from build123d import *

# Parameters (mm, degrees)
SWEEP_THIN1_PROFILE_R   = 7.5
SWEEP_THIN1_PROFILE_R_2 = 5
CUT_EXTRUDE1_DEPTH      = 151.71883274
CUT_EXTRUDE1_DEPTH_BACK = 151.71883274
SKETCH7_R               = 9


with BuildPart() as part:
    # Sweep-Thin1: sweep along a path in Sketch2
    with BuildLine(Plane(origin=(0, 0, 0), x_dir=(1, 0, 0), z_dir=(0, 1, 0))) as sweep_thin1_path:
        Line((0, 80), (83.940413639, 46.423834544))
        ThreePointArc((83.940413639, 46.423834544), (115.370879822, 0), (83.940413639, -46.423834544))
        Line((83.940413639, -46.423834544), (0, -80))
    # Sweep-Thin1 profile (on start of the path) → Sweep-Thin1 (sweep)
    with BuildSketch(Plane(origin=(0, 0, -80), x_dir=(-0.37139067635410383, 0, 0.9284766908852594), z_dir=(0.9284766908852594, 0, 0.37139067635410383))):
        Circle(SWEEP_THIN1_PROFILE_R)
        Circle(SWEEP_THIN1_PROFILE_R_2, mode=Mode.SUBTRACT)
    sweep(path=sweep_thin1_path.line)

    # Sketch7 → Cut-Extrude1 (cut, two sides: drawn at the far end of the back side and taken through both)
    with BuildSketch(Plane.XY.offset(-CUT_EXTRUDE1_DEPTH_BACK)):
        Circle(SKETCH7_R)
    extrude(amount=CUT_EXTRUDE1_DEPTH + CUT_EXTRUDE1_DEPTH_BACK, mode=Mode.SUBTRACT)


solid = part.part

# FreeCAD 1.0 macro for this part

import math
import FreeCAD as App
import Part
import Sketcher

doc = App.newDocument("Part")
params = doc.addObject("Spreadsheet::Sheet", "Params")
for row, (alias, value) in enumerate([
    ("sketch1_diameter", "15 mm"),
    ("sketch1_diameter2", "10 mm"),
    ("sketch2_radius", "50 mm"),
    ("sketch3_diameter", "18 mm"),
], start=1):
    params.set(f"A{row}", alias)
    params.set(f"B{row}", "=" + value)
    params.setAlias(f"B{row}", alias)

body = doc.addObject("PartDesign::Body", "Body")

# Sketch on an angled plane
sketch1 = doc.addObject("Sketcher::SketchObject", "Sketch")
body.addObject(sketch1)
sketch1.Placement = App.Placement(App.Vector(0, 0, -80), App.Rotation(App.Vector(-0.371390676, 0, 0.928476691), App.Vector(0, -1, 0), App.Vector(0.928476691, 0, 0.371390676), "ZXY"))
sketch1.addGeometry(Part.Circle(App.Vector(0, 0, 0), App.Vector(0, 0, 1), 8), False)
sketch1.addGeometry(Part.Circle(App.Vector(0, 0, 0), App.Vector(0, 0, 1), 5), False)
sketch1.addConstraint(Sketcher.Constraint("Coincident", 0, 3, -1, 1))
sketch1.addConstraint(Sketcher.Constraint("Coincident", 1, 3, -1, 1))
sketch1.addConstraint(Sketcher.Constraint("Diameter", 0, 15.0))
sketch1.addConstraint(Sketcher.Constraint("Diameter", 1, 10.0))
sketch1.setExpression("Constraints[2]", "Params.sketch1_diameter")
sketch1.setExpression("Constraints[3]", "Params.sketch1_diameter2")

# Sketch on XZ plane
sketch2 = doc.addObject("Sketcher::SketchObject", "Sketch001")
body.addObject(sketch2)
sketch2.AttachmentSupport = (doc.XZ_Plane, [""])
sketch2.MapMode = "FlatFace"
sketch2.addGeometry(Part.LineSegment(App.Vector(0, -80, 0), App.Vector(84, -46, 0)), False)
sketch2.addGeometry(Part.ArcOfCircle(Part.Circle(App.Vector(65, 0, 0), App.Vector(0, 0, 1), 50), math.radians(-68), math.radians(68)), False)
sketch2.addGeometry(Part.LineSegment(App.Vector(84, 46, 0), App.Vector(0, 80, 0)), False)
sketch2.addConstraint(Sketcher.Constraint("Tangent", 0, 2, 1, 1))
sketch2.addConstraint(Sketcher.Constraint("Tangent", 1, 2, 2, 1))
sketch2.addConstraint(Sketcher.Constraint("Symmetric", 0, 1, 2, 2, -1, 1))
sketch2.addConstraint(Sketcher.Constraint("Symmetric", 0, 2, 1, 2, -1))
sketch2.addConstraint(Sketcher.Constraint("Radius", 1, 50.0))
sketch2.addConstraint(Sketcher.Constraint("DistanceY", 0, 1, -1, 1, 80.0))
sketch2.addConstraint(Sketcher.Constraint("DistanceX", -1, 1, 1, 3, 65.37088))
sketch2.setExpression("Constraints[4]", "Params.sketch2_radius")
doc.recompute()

additivepipe = doc.addObject("PartDesign::AdditivePipe", "AdditivePipe")
body.addObject(additivepipe)
additivepipe.Profile = sketch1
additivepipe.Spine = (sketch2, ["Edge1", "Edge2", "Edge3"])

# Sketch on XY plane
sketch3 = doc.addObject("Sketcher::SketchObject", "Sketch002")
body.addObject(sketch3)
sketch3.AttachmentSupport = (doc.XY_Plane, [""])
sketch3.MapMode = "FlatFace"
sketch3.addGeometry(Part.Circle(App.Vector(0, 0, 0), App.Vector(0, 0, 1), 9), False)
sketch3.addConstraint(Sketcher.Constraint("Coincident", 0, 3, -1, 1))
sketch3.addConstraint(Sketcher.Constraint("Diameter", 0, 18.0))
sketch3.setExpression("Constraints[1]", "Params.sketch3_diameter")
pocket1 = doc.addObject("PartDesign::Pocket", "Pocket")
body.addObject(pocket1)
pocket1.Profile = sketch3
pocket1.Type = "ThroughAll"
pocket1.Midplane = True

doc.recompute()
